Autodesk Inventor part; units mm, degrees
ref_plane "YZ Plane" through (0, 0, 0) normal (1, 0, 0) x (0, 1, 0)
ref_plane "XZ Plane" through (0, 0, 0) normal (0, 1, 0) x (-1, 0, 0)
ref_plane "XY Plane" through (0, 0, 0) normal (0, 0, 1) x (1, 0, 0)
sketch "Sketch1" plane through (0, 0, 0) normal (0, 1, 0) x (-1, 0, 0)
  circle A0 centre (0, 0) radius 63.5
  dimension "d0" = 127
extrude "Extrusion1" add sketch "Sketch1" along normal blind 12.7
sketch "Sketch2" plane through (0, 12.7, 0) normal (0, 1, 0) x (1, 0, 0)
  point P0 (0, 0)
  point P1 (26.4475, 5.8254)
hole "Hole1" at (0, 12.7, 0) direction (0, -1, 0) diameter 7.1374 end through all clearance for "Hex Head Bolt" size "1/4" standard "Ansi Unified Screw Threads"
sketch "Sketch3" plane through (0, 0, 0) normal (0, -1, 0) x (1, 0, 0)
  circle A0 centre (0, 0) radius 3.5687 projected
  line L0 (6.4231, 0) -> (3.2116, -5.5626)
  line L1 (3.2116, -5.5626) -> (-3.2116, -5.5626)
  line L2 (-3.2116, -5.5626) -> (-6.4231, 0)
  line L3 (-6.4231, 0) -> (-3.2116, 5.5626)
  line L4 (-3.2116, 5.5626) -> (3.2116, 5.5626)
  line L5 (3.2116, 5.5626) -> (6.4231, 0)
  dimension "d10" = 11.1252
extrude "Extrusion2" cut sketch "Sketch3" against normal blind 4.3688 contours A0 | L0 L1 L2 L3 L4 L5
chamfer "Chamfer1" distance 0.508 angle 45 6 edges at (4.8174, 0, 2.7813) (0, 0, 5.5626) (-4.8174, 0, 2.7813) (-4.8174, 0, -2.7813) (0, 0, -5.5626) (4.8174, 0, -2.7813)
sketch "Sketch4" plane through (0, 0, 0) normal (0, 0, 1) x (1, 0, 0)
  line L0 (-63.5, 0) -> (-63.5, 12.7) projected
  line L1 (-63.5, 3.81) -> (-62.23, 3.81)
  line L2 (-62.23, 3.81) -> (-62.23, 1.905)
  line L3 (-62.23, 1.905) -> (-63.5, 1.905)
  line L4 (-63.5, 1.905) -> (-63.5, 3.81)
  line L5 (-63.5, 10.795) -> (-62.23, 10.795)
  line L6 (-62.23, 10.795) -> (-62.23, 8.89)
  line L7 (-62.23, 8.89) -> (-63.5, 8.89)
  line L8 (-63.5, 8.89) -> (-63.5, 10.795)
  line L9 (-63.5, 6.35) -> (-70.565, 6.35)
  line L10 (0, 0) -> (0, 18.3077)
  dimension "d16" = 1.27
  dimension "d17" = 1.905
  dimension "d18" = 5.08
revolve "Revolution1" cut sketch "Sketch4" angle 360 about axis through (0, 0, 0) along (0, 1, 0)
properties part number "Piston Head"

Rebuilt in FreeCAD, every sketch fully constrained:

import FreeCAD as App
import Part
import Sketcher
Q = App.Units.Quantity


def edges_at(feature, points):
    """Names of the edges that pass closest to the given points."""
    edges = feature.Shape.Edges
    near = lambda p: min(range(len(edges)), key=lambda i: edges[i].distToShape(Part.Vertex(*p))[0])
    return sorted({f"Edge{near(p) + 1}" for p in points})


def add_polygon(sketch, points):
    """Adds a closed chain of lines whose ends are joined by coincident constraints."""
    first, n = sketch.GeometryCount, len(points)
    for a, b in zip(points, points[1:] + points[:1]):
        sketch.addGeometry(Part.LineSegment(App.Vector(*a, 0), App.Vector(*b, 0)), False)
    for i in range(n):
        sketch.addConstraint(Sketcher.Constraint("Coincident", first + i, 2, first + (i + 1) % n, 1))

doc = App.newDocument("Part")
body = doc.addObject("PartDesign::Body", "Body")

# Sketch on XZ plane
sketch1 = doc.addObject("Sketcher::SketchObject", "Sketch")
body.addObject(sketch1)
sketch1.AttachmentSupport = (doc.XZ_Plane, [""])
sketch1.MapMode = "FlatFace"
sketch1.addGeometry(Part.Circle(App.Vector(0, 0, 0), App.Vector(0, 0, 1), 63.5), False)
sketch1.addConstraint([
    Sketcher.Constraint("Coincident", 0, 3, -1, 1),
    Sketcher.Constraint("Diameter", 0, Q("5 in")),
])
pad1 = doc.addObject("PartDesign::Pad", "Pad")
body.addObject(pad1)
pad1.Profile = sketch1
pad1.Length = Q("0.5 in")
pad1.Reversed = True

# Sketch on XZ plane
sketch2 = doc.addObject("Sketcher::SketchObject", "Sketch001")
body.addObject(sketch2)
sketch2.AttachmentSupport = (doc.XZ_Plane, [""])
sketch2.MapMode = "FlatFace"
sketch2.AttachmentOffset = App.Placement(App.Vector(0, 0, -0.5 * 25.4), App.Rotation())
sketch2.addGeometry(Part.Circle(App.Vector(0, 0, 0), App.Vector(0, 0, 1), 3.5687), False)
sketch2.addConstraint([
    Sketcher.Constraint("Coincident", 0, 3, -1, 1),
    Sketcher.Constraint("Diameter", 0, Q("0.281 in")),
])
doc.recompute()
hole = doc.addObject("PartDesign::Hole", "Hole")
body.addObject(hole)
hole.Profile = sketch2
hole.ThreadType = "None"
hole.Diameter = Q("0.281 in")
hole.DepthType = "ThroughAll"
hole.Reversed = True

# Sketch on XZ plane
sketch3 = doc.addObject("Sketcher::SketchObject", "Sketch002")
body.addObject(sketch3)
sketch3.AttachmentSupport = (doc.XZ_Plane, [""])
sketch3.MapMode = "FlatFace"
add_polygon(sketch3, [(3.2116, -5.5626), (6.4231, 0), (3.2116, 5.5626), (-3.2116, 5.5626), (-6.4231, 0), (-3.2116, -5.5626)])  # lines 0-5
sketch3.addConstraint([
    Sketcher.Constraint("Horizontal", 2),
    Sketcher.Constraint("Horizontal", 5),
    Sketcher.Constraint("Symmetric", 0, 2, 3, 2, -1, 1),
    Sketcher.Constraint("Symmetric", 1, 2, 4, 2, -1, 1),
    Sketcher.Constraint("PointOnObject", 0, 2, -1),
    Sketcher.Constraint("Parallel", 0, 3),
    Sketcher.Constraint("Vertical", 2, 2, 4, 2),
    Sketcher.Constraint("Angle", 0, Q("60.0005 deg")),
    Sketcher.Constraint("DistanceY", 4, 2, 2, 2, Q("0.438 in")),
    Sketcher.Constraint("DistanceX", 2, 2, 2, 1, Q("6.4232 mm")),
])
pocket1 = doc.addObject("PartDesign::Pocket", "Pocket")
body.addObject(pocket1)
pocket1.Profile = sketch3
pocket1.Length = Q("0.172 in")
doc.recompute()

chamfer = doc.addObject("PartDesign::Chamfer", "Chamfer")
body.addObject(chamfer)
chamfer.Base = (pocket1, edges_at(pocket1, [
    (4.817, 0, 2.781),
    (0, 0, 5.563),
    (-4.817, 0, 2.781),
    (-4.817, 0, -2.781),
    (0, 0, -5.563),
    (4.817, 0, -2.781),
]))
chamfer.Size = Q("0.02 in")

# Sketch on XY plane
sketch4 = doc.addObject("Sketcher::SketchObject", "Sketch003")
body.addObject(sketch4)
sketch4.AttachmentSupport = (doc.XY_Plane, [""])
sketch4.MapMode = "FlatFace"
add_polygon(sketch4, [(-63.5, 10.795), (-63.5, 8.89), (-62.23, 8.89), (-62.23, 10.795)])  # lines 0-3
add_polygon(sketch4, [(-63.5, 3.81), (-63.5, 1.905), (-62.23, 1.905), (-62.23, 3.81)])  # lines 4-7
sketch4.addConstraint([
    Sketcher.Constraint("Vertical", 0),
    Sketcher.Constraint("Horizontal", 1),
    Sketcher.Constraint("Vertical", 2),
    Sketcher.Constraint("Horizontal", 3),
    Sketcher.Constraint("Vertical", 4),
    Sketcher.Constraint("Horizontal", 5),
    Sketcher.Constraint("Vertical", 6),
    Sketcher.Constraint("Horizontal", 7),
    Sketcher.Constraint("Vertical", 3, 2, 4, 2),
    Sketcher.Constraint("Vertical", 2, 2, 5, 2),
    Sketcher.Constraint("Equal", 2, 4),
    Sketcher.Constraint("DistanceX", 1, 1, 1, 2, Q("0.05 in")),
    Sketcher.Constraint("DistanceY", 6, 2, 1, 2, Q("0.2 in")),
    Sketcher.Constraint("DistanceY", 0, 2, 0, 1, Q("0.075 in")),
    Sketcher.Constraint("DistanceY", -1, 1, 4, 2, Q("0.075 in")),
    Sketcher.Constraint("DistanceX", 0, 2, -1, 1, Q("2.5 in")),
])
groove = doc.addObject("PartDesign::Groove", "Groove")
body.addObject(groove)
groove.Profile = sketch4
groove.ReferenceAxis = (sketch4, ["V_Axis"])
groove.Angle = 360

doc.recompute()
